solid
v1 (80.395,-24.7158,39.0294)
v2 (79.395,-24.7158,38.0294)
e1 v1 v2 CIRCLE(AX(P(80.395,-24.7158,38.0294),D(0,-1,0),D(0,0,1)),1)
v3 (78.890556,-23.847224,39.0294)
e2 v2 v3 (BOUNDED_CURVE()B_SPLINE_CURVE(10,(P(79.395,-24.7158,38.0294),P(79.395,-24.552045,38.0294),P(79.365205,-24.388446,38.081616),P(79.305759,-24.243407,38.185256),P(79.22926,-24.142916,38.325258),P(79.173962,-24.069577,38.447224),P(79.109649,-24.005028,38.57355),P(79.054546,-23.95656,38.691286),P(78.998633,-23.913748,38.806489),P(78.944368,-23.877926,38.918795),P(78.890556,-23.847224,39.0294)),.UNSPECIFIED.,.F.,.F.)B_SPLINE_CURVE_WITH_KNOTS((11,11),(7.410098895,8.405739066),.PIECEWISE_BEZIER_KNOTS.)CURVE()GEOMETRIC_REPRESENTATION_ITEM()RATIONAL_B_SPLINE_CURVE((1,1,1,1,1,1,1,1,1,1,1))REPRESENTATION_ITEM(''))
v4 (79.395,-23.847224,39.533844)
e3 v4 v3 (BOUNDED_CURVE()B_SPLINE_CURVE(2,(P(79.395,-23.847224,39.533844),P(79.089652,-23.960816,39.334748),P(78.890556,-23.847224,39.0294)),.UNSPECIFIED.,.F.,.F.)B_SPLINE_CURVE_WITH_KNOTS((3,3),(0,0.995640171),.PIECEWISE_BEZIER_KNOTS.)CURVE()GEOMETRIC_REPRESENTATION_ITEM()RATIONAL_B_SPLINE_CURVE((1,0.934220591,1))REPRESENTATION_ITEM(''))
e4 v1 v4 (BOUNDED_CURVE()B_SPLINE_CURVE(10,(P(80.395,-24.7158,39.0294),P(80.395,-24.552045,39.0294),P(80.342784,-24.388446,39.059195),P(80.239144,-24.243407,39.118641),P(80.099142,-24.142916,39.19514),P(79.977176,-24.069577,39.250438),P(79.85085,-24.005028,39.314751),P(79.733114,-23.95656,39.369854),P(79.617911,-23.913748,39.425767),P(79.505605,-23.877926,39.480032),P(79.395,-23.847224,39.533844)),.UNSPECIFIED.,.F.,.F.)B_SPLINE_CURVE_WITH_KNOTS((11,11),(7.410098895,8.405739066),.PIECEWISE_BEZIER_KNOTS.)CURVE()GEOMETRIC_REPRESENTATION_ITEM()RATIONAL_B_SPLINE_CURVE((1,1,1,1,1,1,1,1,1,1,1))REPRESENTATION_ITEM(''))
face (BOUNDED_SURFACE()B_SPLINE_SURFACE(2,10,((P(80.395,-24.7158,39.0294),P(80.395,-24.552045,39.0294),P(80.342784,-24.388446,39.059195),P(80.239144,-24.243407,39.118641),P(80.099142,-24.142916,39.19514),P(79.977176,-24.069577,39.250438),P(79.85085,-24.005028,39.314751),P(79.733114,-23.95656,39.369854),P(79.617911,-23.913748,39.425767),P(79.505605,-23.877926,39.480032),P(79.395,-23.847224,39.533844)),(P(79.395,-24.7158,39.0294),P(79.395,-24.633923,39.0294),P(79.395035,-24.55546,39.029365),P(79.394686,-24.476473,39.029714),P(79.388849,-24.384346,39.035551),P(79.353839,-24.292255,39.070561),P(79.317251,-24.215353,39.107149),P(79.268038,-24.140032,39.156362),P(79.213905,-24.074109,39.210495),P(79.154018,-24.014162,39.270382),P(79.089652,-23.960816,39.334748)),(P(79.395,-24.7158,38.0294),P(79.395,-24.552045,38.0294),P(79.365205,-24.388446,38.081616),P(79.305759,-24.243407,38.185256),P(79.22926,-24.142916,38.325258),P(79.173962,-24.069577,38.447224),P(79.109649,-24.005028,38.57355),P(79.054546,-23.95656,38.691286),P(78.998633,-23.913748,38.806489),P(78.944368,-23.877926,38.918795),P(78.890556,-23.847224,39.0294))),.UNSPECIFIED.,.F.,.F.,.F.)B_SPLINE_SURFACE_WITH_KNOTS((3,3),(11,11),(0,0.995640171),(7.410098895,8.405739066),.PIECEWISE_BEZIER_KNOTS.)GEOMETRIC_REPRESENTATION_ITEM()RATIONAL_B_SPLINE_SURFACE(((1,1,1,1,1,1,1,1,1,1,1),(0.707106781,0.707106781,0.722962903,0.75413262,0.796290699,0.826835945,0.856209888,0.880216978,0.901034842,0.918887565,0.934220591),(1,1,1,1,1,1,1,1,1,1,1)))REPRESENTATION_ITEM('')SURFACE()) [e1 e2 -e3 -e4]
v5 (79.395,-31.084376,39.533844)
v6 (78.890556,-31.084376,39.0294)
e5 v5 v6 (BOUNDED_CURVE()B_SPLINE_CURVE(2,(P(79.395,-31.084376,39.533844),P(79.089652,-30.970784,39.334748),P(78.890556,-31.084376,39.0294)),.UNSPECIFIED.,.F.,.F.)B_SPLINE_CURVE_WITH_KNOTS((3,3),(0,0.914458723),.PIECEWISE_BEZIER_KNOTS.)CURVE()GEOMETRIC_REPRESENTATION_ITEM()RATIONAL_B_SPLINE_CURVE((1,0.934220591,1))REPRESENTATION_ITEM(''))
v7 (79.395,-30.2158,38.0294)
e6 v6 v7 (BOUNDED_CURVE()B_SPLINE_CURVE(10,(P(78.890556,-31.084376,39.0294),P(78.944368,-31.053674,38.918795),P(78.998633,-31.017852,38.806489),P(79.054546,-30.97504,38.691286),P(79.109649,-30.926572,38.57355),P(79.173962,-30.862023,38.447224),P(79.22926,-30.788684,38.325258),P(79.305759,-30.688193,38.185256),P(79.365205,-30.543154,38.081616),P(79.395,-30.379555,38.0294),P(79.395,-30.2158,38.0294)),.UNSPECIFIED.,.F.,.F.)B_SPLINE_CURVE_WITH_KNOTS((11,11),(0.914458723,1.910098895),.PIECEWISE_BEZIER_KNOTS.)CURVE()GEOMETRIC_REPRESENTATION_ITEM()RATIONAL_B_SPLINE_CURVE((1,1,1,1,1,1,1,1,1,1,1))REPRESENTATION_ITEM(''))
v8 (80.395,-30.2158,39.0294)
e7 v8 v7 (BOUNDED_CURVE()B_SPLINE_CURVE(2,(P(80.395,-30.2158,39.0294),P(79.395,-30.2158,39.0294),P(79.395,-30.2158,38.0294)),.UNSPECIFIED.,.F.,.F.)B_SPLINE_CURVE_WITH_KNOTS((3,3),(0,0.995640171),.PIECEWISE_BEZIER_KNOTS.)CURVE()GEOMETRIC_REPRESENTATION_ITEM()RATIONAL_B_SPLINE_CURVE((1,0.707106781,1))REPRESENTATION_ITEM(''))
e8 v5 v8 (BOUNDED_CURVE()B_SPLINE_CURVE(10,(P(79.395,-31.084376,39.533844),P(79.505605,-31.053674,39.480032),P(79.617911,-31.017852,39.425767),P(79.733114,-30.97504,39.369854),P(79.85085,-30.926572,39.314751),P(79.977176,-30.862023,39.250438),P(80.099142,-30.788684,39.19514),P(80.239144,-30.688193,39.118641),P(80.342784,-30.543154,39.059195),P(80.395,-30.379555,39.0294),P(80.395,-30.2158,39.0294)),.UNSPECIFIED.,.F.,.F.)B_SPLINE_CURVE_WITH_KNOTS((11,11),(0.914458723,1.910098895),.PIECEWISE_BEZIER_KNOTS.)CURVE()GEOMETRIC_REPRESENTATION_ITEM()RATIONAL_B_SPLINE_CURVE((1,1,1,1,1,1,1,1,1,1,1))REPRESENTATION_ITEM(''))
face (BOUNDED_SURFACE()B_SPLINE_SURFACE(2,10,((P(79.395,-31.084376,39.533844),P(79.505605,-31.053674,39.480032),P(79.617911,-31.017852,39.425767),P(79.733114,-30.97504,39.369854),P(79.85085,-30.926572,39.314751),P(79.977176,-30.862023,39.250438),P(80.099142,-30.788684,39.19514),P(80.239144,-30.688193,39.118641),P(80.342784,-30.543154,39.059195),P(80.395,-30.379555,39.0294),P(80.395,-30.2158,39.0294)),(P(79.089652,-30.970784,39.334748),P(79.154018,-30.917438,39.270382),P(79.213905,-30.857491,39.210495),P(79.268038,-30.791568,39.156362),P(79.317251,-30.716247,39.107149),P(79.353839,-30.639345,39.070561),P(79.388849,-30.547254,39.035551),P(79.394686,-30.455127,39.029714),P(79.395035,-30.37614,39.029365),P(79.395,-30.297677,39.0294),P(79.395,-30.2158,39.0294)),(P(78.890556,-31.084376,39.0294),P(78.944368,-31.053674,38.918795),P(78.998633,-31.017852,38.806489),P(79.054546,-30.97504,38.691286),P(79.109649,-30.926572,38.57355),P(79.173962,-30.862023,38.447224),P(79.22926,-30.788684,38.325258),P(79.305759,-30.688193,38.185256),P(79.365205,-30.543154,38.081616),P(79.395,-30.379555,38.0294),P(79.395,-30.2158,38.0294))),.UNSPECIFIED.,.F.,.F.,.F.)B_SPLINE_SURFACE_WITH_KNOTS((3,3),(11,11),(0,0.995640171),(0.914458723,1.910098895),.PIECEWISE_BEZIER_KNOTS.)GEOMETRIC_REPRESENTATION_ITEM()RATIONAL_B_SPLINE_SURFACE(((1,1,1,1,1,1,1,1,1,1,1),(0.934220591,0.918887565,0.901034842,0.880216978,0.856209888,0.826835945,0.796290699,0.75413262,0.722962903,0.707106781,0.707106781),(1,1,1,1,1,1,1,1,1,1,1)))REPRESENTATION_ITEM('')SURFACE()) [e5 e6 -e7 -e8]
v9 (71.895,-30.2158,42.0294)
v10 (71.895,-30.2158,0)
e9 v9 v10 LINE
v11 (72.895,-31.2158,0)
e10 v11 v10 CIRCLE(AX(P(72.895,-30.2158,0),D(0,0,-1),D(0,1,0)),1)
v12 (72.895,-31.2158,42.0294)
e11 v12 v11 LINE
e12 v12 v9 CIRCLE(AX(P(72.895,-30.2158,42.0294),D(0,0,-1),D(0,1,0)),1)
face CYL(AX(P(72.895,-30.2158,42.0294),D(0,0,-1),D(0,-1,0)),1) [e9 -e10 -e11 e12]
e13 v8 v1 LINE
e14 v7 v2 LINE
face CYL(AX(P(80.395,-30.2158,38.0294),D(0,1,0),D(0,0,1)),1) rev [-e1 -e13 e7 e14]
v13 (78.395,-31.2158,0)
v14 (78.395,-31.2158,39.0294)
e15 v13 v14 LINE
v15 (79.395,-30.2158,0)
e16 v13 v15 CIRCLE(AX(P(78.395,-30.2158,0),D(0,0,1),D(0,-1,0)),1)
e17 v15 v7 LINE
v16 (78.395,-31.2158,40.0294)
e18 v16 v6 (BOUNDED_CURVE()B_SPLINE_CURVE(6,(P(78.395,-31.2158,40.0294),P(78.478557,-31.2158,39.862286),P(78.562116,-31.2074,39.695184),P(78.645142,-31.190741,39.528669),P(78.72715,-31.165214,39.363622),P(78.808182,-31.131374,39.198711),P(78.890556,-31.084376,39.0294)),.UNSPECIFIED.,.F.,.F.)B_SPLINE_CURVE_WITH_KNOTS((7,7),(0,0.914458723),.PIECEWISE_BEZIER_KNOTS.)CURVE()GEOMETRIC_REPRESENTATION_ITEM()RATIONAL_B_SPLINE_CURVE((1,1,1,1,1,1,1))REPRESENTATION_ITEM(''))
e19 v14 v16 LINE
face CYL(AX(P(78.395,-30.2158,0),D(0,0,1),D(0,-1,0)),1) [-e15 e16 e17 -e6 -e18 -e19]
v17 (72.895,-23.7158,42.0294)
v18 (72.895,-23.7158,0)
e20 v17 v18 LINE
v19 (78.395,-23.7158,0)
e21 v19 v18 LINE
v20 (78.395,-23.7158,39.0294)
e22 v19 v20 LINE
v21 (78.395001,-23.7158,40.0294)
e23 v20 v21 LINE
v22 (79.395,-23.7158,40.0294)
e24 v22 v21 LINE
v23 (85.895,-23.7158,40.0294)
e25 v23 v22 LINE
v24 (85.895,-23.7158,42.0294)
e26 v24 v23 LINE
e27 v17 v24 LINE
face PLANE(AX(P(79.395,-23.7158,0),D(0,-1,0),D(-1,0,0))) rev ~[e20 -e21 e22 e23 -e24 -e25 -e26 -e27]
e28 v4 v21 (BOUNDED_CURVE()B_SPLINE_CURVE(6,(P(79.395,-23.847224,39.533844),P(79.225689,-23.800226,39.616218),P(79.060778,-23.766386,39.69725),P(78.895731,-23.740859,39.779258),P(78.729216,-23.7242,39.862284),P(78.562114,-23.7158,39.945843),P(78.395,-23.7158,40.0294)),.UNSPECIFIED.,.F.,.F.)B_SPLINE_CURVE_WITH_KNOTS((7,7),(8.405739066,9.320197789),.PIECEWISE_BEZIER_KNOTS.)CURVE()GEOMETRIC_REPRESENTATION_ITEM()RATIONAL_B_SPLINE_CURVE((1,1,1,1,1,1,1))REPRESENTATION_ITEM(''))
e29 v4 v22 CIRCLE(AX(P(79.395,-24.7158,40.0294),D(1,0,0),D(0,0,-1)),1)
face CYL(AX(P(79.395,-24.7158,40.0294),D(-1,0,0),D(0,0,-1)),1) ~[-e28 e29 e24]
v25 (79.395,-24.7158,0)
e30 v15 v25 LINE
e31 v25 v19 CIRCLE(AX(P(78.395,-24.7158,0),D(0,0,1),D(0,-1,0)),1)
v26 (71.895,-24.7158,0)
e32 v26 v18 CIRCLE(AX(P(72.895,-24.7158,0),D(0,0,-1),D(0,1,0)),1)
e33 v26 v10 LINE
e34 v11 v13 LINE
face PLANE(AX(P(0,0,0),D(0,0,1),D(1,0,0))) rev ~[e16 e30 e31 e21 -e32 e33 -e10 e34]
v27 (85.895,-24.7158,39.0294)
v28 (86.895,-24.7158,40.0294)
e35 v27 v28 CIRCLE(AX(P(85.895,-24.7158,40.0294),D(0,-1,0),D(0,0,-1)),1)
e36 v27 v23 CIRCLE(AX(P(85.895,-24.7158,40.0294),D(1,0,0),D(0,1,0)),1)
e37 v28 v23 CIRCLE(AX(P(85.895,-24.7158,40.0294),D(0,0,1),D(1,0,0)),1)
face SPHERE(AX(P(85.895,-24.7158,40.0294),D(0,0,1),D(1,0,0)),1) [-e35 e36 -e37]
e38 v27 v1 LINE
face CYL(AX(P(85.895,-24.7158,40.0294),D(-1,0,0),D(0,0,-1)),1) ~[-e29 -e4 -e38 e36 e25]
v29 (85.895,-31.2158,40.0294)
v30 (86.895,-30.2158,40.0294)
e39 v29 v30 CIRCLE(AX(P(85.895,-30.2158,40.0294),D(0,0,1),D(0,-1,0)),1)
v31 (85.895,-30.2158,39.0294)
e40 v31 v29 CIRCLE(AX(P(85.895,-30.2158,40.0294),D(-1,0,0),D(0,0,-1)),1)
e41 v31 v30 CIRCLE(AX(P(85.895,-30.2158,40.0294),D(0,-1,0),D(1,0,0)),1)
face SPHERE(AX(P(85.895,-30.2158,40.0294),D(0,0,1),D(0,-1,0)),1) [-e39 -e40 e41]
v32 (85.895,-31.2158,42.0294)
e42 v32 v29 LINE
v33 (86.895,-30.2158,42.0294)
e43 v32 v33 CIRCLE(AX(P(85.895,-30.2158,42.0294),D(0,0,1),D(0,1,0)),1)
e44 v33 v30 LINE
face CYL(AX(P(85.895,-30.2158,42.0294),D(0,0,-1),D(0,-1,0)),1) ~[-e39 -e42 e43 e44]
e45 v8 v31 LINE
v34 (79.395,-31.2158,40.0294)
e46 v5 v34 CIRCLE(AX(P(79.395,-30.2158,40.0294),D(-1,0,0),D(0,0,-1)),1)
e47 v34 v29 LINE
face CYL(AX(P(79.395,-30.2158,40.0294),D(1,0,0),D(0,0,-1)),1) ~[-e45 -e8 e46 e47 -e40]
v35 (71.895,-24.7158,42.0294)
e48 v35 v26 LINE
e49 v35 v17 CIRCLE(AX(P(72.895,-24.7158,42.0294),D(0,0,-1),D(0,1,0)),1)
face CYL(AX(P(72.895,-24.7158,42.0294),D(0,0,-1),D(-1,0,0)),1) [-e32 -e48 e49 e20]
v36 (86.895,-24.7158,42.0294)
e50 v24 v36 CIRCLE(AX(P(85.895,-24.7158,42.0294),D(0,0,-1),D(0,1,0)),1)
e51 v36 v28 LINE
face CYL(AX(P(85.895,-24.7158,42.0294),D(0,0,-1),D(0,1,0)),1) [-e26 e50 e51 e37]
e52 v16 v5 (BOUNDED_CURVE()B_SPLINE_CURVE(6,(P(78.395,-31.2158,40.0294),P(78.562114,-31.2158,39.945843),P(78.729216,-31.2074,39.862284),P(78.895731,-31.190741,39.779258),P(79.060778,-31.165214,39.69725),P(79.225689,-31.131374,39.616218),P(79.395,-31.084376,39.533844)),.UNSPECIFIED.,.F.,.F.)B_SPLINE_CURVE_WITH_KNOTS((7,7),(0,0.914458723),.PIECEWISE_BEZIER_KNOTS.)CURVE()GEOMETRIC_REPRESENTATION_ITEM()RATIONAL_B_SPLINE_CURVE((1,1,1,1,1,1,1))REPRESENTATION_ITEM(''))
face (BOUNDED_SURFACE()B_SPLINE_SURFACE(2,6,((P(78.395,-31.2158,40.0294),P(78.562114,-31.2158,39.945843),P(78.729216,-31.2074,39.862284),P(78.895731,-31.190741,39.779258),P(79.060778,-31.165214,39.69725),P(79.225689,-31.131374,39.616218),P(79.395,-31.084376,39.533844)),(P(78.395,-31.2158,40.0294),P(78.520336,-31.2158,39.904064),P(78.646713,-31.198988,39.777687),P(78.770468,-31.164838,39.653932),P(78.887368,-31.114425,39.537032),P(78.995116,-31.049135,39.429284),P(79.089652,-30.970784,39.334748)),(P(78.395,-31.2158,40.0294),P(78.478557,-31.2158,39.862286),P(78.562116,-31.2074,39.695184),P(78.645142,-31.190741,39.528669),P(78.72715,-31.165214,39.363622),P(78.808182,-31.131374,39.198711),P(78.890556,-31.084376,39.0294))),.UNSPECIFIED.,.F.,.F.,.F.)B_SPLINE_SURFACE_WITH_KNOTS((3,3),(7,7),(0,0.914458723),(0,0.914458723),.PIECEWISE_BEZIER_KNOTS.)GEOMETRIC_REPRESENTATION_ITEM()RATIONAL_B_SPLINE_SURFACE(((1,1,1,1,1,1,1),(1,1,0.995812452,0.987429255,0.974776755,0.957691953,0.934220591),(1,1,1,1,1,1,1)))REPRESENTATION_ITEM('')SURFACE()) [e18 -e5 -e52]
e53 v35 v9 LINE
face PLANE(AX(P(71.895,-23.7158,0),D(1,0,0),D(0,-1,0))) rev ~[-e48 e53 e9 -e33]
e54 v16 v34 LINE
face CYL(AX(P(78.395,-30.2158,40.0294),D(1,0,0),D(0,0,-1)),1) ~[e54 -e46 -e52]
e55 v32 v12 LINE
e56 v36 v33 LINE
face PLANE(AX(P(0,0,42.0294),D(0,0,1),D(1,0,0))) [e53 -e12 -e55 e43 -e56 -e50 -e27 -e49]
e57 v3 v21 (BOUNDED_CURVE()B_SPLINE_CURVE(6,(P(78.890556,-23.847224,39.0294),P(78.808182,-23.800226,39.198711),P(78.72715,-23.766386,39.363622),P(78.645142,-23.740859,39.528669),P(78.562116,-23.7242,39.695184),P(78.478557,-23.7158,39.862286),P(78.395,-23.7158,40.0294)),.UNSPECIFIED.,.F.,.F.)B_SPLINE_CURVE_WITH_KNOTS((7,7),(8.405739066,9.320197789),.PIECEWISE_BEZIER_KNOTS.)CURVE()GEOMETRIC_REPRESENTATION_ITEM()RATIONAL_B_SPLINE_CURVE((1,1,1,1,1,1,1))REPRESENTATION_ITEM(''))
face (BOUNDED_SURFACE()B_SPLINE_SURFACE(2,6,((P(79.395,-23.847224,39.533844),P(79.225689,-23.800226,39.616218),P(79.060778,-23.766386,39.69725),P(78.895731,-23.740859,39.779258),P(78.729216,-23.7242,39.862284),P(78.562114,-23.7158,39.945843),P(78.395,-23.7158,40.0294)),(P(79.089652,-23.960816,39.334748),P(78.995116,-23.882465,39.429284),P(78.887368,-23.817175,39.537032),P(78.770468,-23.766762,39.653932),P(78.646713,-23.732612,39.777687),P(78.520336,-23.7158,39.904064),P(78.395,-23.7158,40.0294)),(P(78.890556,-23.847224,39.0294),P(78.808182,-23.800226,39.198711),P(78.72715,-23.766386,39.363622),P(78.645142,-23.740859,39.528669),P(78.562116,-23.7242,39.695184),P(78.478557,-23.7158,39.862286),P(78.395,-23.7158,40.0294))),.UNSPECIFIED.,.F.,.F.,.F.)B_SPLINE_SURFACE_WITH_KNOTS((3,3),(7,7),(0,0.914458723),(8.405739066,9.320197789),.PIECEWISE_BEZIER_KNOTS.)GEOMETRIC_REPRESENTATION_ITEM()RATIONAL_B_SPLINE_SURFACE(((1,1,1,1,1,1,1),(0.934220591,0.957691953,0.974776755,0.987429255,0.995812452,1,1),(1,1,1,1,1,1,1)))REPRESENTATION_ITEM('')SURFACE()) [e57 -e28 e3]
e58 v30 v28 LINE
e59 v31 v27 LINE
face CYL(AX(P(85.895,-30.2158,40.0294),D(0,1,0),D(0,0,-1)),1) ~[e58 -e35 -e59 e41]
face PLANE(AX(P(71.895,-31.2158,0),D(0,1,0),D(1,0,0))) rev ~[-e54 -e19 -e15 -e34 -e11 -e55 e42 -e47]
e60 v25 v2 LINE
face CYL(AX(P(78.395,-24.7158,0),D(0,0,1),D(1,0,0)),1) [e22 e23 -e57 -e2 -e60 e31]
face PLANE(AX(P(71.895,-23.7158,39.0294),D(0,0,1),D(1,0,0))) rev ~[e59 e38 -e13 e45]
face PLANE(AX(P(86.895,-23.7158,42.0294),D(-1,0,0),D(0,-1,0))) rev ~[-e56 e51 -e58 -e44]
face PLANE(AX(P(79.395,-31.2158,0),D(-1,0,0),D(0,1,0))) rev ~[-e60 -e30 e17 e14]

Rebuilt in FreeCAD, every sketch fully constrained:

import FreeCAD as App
import Part
import Sketcher
from FreeCAD import Vector
Q = App.Units.Quantity


def edges_at(feature, points):
    """Names of the edges that pass closest to the given points."""
    edges = feature.Shape.Edges
    near = lambda p: min(range(len(edges)), key=lambda i: edges[i].distToShape(Part.Vertex(*p))[0])
    return sorted({f"Edge{near(p) + 1}" for p in points})


def add_polygon(sketch, points):
    """Adds a closed chain of lines whose ends are joined by coincident constraints."""
    first, n = sketch.GeometryCount, len(points)
    for a, b in zip(points, points[1:] + points[:1]):
        sketch.addGeometry(Part.LineSegment(App.Vector(*a, 0), App.Vector(*b, 0)), False)
    for i in range(n):
        sketch.addConstraint(Sketcher.Constraint("Coincident", first + i, 2, first + (i + 1) % n, 1))

doc = App.newDocument("Part")
body = doc.addObject("PartDesign::Body", "Body")

sketch1 = doc.addObject("Sketcher::SketchObject", "Sketch")
body.addObject(sketch1)
sketch1.AttachmentSupport = (doc.XY_Plane, [""])
sketch1.MapMode = "FlatFace"
add_polygon(sketch1, [(71.895, -31.2158), (79.395, -31.2158), (79.395, -23.7158), (71.895, -23.7158)])
sketch1.addConstraint(Sketcher.Constraint("Horizontal", 0))
sketch1.addConstraint(Sketcher.Constraint("Vertical", 1))
sketch1.addConstraint(Sketcher.Constraint("Horizontal", 2))
sketch1.addConstraint(Sketcher.Constraint("Vertical", 3))
sketch1.addConstraint(Sketcher.Constraint("Equal", 2, 1))
sketch1.addConstraint(Sketcher.Constraint("DistanceX", 0, 1, 0, 2, Q("7.5 mm")))
sketch1.addConstraint(Sketcher.Constraint("DistanceX", -1, 1, 0, 2, Q("79.395 mm")))
sketch1.addConstraint(Sketcher.Constraint("DistanceY", 0, 2, -1, 1, Q("31.2158 mm")))
pad1 = doc.addObject("PartDesign::Pad", "Pad")
body.addObject(pad1)
pad1.Profile = sketch1
pad1.Length = 42.0294

sketch2 = doc.addObject("Sketcher::SketchObject", "Sketch001")
body.addObject(sketch2)
sketch2.AttachmentSupport = (doc.XY_Plane, [""])
sketch2.MapMode = "FlatFace"
sketch2.AttachmentOffset = App.Placement(Vector(0, 0, 42.0294), App.Rotation())
add_polygon(sketch2, [(86.895, -23.7158), (71.895, -23.7158), (71.895, -31.2158), (86.895, -31.2158)])
sketch2.addConstraint(Sketcher.Constraint("Horizontal", 0))
sketch2.addConstraint(Sketcher.Constraint("Vertical", 1))
sketch2.addConstraint(Sketcher.Constraint("Horizontal", 2))
sketch2.addConstraint(Sketcher.Constraint("Vertical", 3))
sketch2.addConstraint(Sketcher.Constraint("DistanceX", 0, 2, 0, 1, Q("15 mm")))
sketch2.addConstraint(Sketcher.Constraint("DistanceY", 1, 2, 1, 1, Q("7.5 mm")))
sketch2.addConstraint(Sketcher.Constraint("DistanceX", -1, 1, 0, 2, Q("71.895 mm")))
sketch2.addConstraint(Sketcher.Constraint("DistanceY", 0, 2, -1, 1, Q("23.7158 mm")))
pad2 = doc.addObject("PartDesign::Pad", "Pad001")
body.addObject(pad2)
pad2.Profile = sketch2
pad2.Length = 3
pad2.Reversed = True
doc.recompute()

fillet = doc.addObject("PartDesign::Fillet", "Fillet")
body.addObject(fillet)
fillet.Base = (pad2, edges_at(pad2, [
    (79.395, -23.716, 19.515),
    (71.895, -23.716, 21.015),
    (79.395, -31.216, 19.515),
    (71.895, -31.216, 21.015),
    (86.895, -23.716, 40.529),
    (86.895, -31.216, 40.529),
]))
fillet.Radius = 1
doc.recompute()

fillet2 = doc.addObject("PartDesign::Fillet", "Fillet001")
body.addObject(fillet2)
fillet2.Base = (fillet, edges_at(fillet, [
    (86.602, -30.923, 39.029),
    (78.895, -31.216, 39.029),
    (86.602, -24.009, 39.029),
    (78.895, -23.716, 39.029),
    (86.895, -27.466, 39.029),
]))
fillet2.Radius = 1
doc.recompute()

fillet3 = doc.addObject("PartDesign::Fillet", "Fillet002")
body.addObject(fillet3)
fillet3.Base = (fillet2, edges_at(fillet2, [(79.395, -27.466, 39.029)]))
fillet3.Radius = 1

doc.recompute()
